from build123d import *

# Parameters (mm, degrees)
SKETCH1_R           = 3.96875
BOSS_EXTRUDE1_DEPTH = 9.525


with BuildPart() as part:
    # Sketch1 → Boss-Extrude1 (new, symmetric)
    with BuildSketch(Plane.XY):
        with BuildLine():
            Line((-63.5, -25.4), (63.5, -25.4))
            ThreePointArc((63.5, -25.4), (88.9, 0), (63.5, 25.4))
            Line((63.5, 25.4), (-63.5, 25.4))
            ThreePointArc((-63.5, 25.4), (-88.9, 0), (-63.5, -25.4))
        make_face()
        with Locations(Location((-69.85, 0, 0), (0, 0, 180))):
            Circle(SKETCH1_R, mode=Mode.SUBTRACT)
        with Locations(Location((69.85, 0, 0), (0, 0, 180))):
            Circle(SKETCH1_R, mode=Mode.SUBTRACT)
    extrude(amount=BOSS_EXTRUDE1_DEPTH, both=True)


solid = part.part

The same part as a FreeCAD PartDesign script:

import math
import FreeCAD as App
import Part
import Sketcher
Q = App.Units.Quantity

doc = App.newDocument("Part")
body = doc.addObject("PartDesign::Body", "Body")

# Sketch on XY plane
sketch1 = doc.addObject("Sketcher::SketchObject", "Sketch")
body.addObject(sketch1)
sketch1.AttachmentSupport = (doc.XY_Plane, [""])
sketch1.MapMode = "FlatFace"
sketch1.addGeometry(Part.LineSegment(App.Vector(-63.5, -25.4, 0), App.Vector(63.5, -25.4, 0)), False)
sketch1.addGeometry(Part.ArcOfCircle(Part.Circle(App.Vector(63.5, 0, 0), App.Vector(0, 0, 1), 25.4), math.radians(-90), math.radians(90)), False)
sketch1.addGeometry(Part.LineSegment(App.Vector(63.5, 25.4, 0), App.Vector(-63.5, 25.4, 0)), False)
sketch1.addGeometry(Part.ArcOfCircle(Part.Circle(App.Vector(-63.5, 0, 0), App.Vector(0, 0, 1), 25.4), math.radians(90), math.radians(270)), False)
sketch1.addGeometry(Part.Circle(App.Vector(-69.85, 0, 0), App.Vector(0, 0, 1), 3.96875), False)
sketch1.addGeometry(Part.Circle(App.Vector(69.85, 0, 0), App.Vector(0, 0, 1), 3.96875), False)
sketch1.addConstraint(Sketcher.Constraint("Tangent", 0, 2, 1, 1))
sketch1.addConstraint(Sketcher.Constraint("Tangent", 1, 2, 2, 1))
sketch1.addConstraint(Sketcher.Constraint("Tangent", 2, 2, 3, 1))
sketch1.addConstraint(Sketcher.Constraint("Tangent", 3, 2, 0, 1))
sketch1.addConstraint(Sketcher.Constraint("Horizontal", 0))
sketch1.addConstraint(Sketcher.Constraint("Horizontal", 2))
sketch1.addConstraint(Sketcher.Constraint("Equal", 4, 5))
sketch1.addConstraint(Sketcher.Constraint("Symmetric", 1, 3, 3, 3, -1, 1))
sketch1.addConstraint(Sketcher.Constraint("Symmetric", 4, 3, 5, 3, -1, 1))
sketch1.addConstraint(Sketcher.Constraint("PointOnObject", 4, 3, -1))
sketch1.addConstraint(Sketcher.Constraint("Radius", 1, Q("1 in")))
sketch1.addConstraint(Sketcher.Constraint("DistanceX", 0, 1, 0, 2, Q("5 in")))
sketch1.addConstraint(Sketcher.Constraint("Diameter", 4, Q("0.3125 in")))
sketch1.addConstraint(Sketcher.Constraint("DistanceX", 4, 3, 5, 3, Q("5.5 in")))
pad1 = doc.addObject("PartDesign::Pad", "Pad")
body.addObject(pad1)
pad1.Profile = sketch1
pad1.Length = Q("0.75 in")
pad1.Midplane = True

doc.recompute()
